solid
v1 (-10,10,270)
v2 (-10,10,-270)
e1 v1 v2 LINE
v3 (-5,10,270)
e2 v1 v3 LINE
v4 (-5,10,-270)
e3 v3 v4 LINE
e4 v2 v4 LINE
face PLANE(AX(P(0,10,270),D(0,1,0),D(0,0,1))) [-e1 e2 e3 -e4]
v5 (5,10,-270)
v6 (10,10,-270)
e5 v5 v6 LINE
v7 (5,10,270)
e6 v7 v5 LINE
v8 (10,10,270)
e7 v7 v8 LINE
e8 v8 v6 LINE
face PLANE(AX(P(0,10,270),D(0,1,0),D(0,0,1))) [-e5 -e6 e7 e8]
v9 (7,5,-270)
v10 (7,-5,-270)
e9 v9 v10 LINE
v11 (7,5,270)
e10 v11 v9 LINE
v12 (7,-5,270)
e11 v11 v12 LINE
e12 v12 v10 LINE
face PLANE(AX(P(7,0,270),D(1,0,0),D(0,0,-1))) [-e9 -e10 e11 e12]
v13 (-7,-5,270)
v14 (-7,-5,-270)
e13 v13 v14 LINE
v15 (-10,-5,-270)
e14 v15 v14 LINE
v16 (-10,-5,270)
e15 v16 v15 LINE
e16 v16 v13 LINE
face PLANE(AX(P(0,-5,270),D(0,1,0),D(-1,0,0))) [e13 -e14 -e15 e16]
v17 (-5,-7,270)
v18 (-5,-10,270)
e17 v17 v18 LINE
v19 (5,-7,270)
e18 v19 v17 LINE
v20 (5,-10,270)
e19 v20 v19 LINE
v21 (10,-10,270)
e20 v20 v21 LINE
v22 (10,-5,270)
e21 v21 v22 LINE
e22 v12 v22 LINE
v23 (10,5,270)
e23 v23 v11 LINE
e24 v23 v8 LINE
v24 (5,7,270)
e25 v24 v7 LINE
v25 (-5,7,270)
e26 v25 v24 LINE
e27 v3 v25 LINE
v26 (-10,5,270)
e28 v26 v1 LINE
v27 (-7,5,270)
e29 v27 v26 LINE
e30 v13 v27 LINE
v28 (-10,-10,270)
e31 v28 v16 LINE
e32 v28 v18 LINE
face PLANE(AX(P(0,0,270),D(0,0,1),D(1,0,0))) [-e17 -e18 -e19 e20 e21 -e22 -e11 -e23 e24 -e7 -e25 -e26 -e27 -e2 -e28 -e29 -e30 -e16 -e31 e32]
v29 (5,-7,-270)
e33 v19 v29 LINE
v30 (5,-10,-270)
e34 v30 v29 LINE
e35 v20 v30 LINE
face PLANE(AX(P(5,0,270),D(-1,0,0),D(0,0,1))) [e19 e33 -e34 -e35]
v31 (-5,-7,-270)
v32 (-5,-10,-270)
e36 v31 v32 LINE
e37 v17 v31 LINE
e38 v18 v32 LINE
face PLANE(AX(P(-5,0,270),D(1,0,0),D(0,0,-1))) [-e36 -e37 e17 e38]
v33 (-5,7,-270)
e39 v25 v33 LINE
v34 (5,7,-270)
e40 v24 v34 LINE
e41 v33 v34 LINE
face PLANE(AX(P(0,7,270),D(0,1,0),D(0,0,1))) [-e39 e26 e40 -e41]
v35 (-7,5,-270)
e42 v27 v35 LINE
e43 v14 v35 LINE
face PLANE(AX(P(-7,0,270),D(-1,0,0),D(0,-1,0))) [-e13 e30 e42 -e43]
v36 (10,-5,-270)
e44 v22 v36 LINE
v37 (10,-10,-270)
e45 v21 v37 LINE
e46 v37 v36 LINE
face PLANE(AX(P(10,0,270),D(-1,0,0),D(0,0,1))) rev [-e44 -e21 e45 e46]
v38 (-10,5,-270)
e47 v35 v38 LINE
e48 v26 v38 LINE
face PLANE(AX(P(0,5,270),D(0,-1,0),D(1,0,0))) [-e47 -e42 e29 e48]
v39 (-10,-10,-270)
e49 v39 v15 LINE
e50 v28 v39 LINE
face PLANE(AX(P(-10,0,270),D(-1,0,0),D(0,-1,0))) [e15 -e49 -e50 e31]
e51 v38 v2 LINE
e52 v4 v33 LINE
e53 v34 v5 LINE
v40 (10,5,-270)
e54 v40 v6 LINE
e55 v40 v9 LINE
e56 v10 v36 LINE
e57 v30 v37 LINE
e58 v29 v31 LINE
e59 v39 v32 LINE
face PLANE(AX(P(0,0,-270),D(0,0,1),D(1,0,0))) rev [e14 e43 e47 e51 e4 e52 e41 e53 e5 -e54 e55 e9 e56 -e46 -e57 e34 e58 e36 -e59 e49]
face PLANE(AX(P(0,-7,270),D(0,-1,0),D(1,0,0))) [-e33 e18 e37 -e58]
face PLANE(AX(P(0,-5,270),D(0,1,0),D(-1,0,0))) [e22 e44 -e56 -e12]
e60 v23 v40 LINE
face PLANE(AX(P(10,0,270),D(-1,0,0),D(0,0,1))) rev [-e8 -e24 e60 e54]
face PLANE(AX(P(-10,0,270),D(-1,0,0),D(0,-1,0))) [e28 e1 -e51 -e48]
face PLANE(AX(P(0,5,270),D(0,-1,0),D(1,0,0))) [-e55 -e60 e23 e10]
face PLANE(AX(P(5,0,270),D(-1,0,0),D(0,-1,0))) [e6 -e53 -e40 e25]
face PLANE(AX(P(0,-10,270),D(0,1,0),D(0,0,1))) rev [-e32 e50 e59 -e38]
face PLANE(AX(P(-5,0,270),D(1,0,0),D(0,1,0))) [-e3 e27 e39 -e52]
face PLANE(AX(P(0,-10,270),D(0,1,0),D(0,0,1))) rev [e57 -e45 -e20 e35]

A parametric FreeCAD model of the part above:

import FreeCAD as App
import Part
import Sketcher

doc = App.newDocument("Part")
body = doc.addObject("PartDesign::Body", "Body")

# Sketch on XY plane
sketch1 = body.newObject("Sketcher::SketchObject", "Sketch")
sketch1.AttachmentSupport = (doc.getObject("XY_Plane"), [""])
sketch1.MapMode = "FlatFace"
sketch1.addGeometry([
    Part.LineSegment(App.Vector(-5, 7, 0), App.Vector(-5, 10, 0)),  # 0
    Part.LineSegment(App.Vector(-5, 10, 0), App.Vector(-10, 10, 0)),  # 1
    Part.LineSegment(App.Vector(-10, 10, 0), App.Vector(-10, 5, 0)),  # 2
    Part.LineSegment(App.Vector(-10, 5, 0), App.Vector(-7, 5, 0)),  # 3
    Part.LineSegment(App.Vector(-7, 5, 0), App.Vector(-7, -5, 0)),  # 4
    Part.LineSegment(App.Vector(-7, -5, 0), App.Vector(-10, -5, 0)),  # 5
    Part.LineSegment(App.Vector(-10, -5, 0), App.Vector(-10, -10, 0)),  # 6
    Part.LineSegment(App.Vector(-10, -10, 0), App.Vector(-5, -10, 0)),  # 7
    Part.LineSegment(App.Vector(-5, -10, 0), App.Vector(-5, -7, 0)),  # 8
    Part.LineSegment(App.Vector(-5, -7, 0), App.Vector(5, -7, 0)),  # 9
    Part.LineSegment(App.Vector(5, -7, 0), App.Vector(5, -10, 0)),  # 10
    Part.LineSegment(App.Vector(5, -10, 0), App.Vector(10, -10, 0)),  # 11
    Part.LineSegment(App.Vector(10, -10, 0), App.Vector(10, -5, 0)),  # 12
    Part.LineSegment(App.Vector(10, -5, 0), App.Vector(7, -5, 0)),  # 13
    Part.LineSegment(App.Vector(7, -5, 0), App.Vector(7, 5, 0)),  # 14
    Part.LineSegment(App.Vector(7, 5, 0), App.Vector(10, 5, 0)),  # 15
    Part.LineSegment(App.Vector(10, 5, 0), App.Vector(10, 10, 0)),  # 16
    Part.LineSegment(App.Vector(10, 10, 0), App.Vector(5, 10, 0)),  # 17
    Part.LineSegment(App.Vector(5, 10, 0), App.Vector(5, 7, 0)),  # 18
    Part.LineSegment(App.Vector(5, 7, 0), App.Vector(-5, 7, 0)),  # 19
], False)
sketch1.addConstraint([
    Sketcher.Constraint("Coincident", 0, 2, 1, 1),
    Sketcher.Constraint("Coincident", 1, 2, 2, 1),
    Sketcher.Constraint("Coincident", 2, 2, 3, 1),
    Sketcher.Constraint("Coincident", 3, 2, 4, 1),
    Sketcher.Constraint("Coincident", 4, 2, 5, 1),
    Sketcher.Constraint("Coincident", 5, 2, 6, 1),
    Sketcher.Constraint("Coincident", 6, 2, 7, 1),
    Sketcher.Constraint("Coincident", 7, 2, 8, 1),
    Sketcher.Constraint("Coincident", 8, 2, 9, 1),
    Sketcher.Constraint("Coincident", 9, 2, 10, 1),
    Sketcher.Constraint("Coincident", 10, 2, 11, 1),
    Sketcher.Constraint("Coincident", 11, 2, 12, 1),
    Sketcher.Constraint("Coincident", 12, 2, 13, 1),
    Sketcher.Constraint("Coincident", 13, 2, 14, 1),
    Sketcher.Constraint("Coincident", 14, 2, 15, 1),
    Sketcher.Constraint("Coincident", 15, 2, 16, 1),
    Sketcher.Constraint("Coincident", 16, 2, 17, 1),
    Sketcher.Constraint("Coincident", 17, 2, 18, 1),
    Sketcher.Constraint("Coincident", 18, 2, 19, 1),
    Sketcher.Constraint("Coincident", 19, 2, 0, 1),
    Sketcher.Constraint("Vertical", 0),
    Sketcher.Constraint("Horizontal", 1),
    Sketcher.Constraint("Vertical", 2),
    Sketcher.Constraint("Horizontal", 3),
    Sketcher.Constraint("Vertical", 4),
    Sketcher.Constraint("Horizontal", 5),
    Sketcher.Constraint("Vertical", 6),
    Sketcher.Constraint("Horizontal", 7),
    Sketcher.Constraint("Vertical", 8),
    Sketcher.Constraint("Horizontal", 9),
    Sketcher.Constraint("Vertical", 10),
    Sketcher.Constraint("Horizontal", 11),
    Sketcher.Constraint("Vertical", 12),
    Sketcher.Constraint("Horizontal", 13),
    Sketcher.Constraint("Vertical", 14),
    Sketcher.Constraint("Horizontal", 15),
    Sketcher.Constraint("Vertical", 16),
    Sketcher.Constraint("Horizontal", 17),
    Sketcher.Constraint("Vertical", 18),
    Sketcher.Constraint("Horizontal", 19),
    Sketcher.Constraint("Symmetric", 0, 2, 10, 2, -1, 1),
    Sketcher.Constraint("Symmetric", 2, 2, 12, 2, -1, 1),
    Sketcher.Constraint("Symmetric", 4, 2, 14, 2, -1, 1),
    Sketcher.Constraint("Symmetric", 6, 2, 16, 2, -1, 1),
    Sketcher.Constraint("Symmetric", 8, 2, 18, 2, -1, 1),
    Sketcher.Constraint("Symmetric", 7, 2, 10, 2, -2),
    Sketcher.Constraint("Symmetric", 5, 2, 12, 2, -2),
    Sketcher.Constraint("Equal", 15, 0),
    Sketcher.Constraint("Equal", 17, 2),
    Sketcher.Constraint("Equal", 19, 4),
    Sketcher.Constraint("DistanceX", 1, 2, 1, 1, 5.0),
    Sketcher.Constraint("DistanceX", 3, 1, 3, 2, 3.0),
    Sketcher.Constraint("DistanceX", 9, 1, 9, 2, 10.0),
])
pad1 = body.newObject("PartDesign::Pad", "Pad")
pad1.Profile = sketch1
pad1.Length = 540
pad1.Midplane = True

doc.recompute()
